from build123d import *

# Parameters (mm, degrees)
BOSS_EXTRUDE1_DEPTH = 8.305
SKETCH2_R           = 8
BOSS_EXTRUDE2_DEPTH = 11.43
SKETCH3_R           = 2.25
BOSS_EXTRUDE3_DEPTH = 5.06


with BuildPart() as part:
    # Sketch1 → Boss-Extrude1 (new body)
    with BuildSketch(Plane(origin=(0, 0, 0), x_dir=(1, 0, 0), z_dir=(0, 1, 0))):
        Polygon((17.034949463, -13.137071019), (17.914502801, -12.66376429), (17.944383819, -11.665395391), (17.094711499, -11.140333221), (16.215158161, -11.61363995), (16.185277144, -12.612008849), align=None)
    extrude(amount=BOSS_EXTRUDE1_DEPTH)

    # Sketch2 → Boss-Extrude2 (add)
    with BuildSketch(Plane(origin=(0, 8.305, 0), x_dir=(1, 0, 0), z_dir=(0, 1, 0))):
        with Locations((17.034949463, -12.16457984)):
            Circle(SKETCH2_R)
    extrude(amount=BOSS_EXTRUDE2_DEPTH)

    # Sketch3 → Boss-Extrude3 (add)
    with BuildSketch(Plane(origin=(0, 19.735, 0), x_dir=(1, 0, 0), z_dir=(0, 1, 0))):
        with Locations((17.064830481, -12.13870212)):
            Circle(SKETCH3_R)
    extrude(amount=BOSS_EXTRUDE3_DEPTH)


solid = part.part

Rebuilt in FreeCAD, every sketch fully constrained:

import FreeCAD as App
import Part
import Sketcher


def add_polygon(sketch, points):
    """Adds a closed chain of lines whose ends are joined by coincident constraints."""
    first, n = sketch.GeometryCount, len(points)
    for a, b in zip(points, points[1:] + points[:1]):
        sketch.addGeometry(Part.LineSegment(App.Vector(*a, 0), App.Vector(*b, 0)), False)
    for i in range(n):
        sketch.addConstraint(Sketcher.Constraint("Coincident", first + i, 2, first + (i + 1) % n, 1))

doc = App.newDocument("Part")
body = doc.addObject("PartDesign::Body", "Body")

# Sketch on XZ plane
sketch1 = doc.addObject("Sketcher::SketchObject", "Sketch")
body.addObject(sketch1)
sketch1.AttachmentSupport = (doc.XZ_Plane, [""])
sketch1.MapMode = "FlatFace"
add_polygon(sketch1, [(17.034949, 13.137071), (17.914503, 12.663764), (17.944384, 11.665395), (17.094711, 11.140333), (16.215158, 11.61364), (16.185277, 12.612009)])  # lines 0-5
sketch1.addConstraint([
    Sketcher.Constraint("Parallel", 0, 3),
    Sketcher.Constraint("Parallel", 1, 4),
    Sketcher.Constraint("Parallel", 2, 5),
    Sketcher.Constraint("Equal", 0, 1),
    Sketcher.Constraint("Equal", 1, 2),
    Sketcher.Constraint("Equal", 2, 3),
    Sketcher.Constraint("DistanceX", -1, 1, 2, 2, 17.094711),
    Sketcher.Constraint("DistanceX", -1, 1, 3, 2, 16.215158),
    Sketcher.Constraint("DistanceY", -1, 1, 3, 2, 11.61364),
    Sketcher.Constraint("DistanceY", -1, 1, 4, 2, 12.612009),
    Sketcher.Constraint("DistanceX", -1, 1, 5, 2, 17.034949),
    Sketcher.Constraint("DistanceY", -1, 1, 5, 2, 13.137071),
])
pad1 = doc.addObject("PartDesign::Pad", "Pad")
body.addObject(pad1)
pad1.Profile = sketch1
pad1.Length = 8.305
pad1.Reversed = True

# Sketch on XZ plane
sketch2 = doc.addObject("Sketcher::SketchObject", "Sketch001")
body.addObject(sketch2)
sketch2.AttachmentSupport = (doc.XZ_Plane, [""])
sketch2.MapMode = "FlatFace"
sketch2.AttachmentOffset = App.Placement(App.Vector(0, 0, -8.305), App.Rotation())
sketch2.addGeometry(Part.Circle(App.Vector(17.034949, 12.16458, 0), App.Vector(0, 0, 1), 8), False)
sketch2.addConstraint([
    Sketcher.Constraint("Diameter", 0, 16.0),
    Sketcher.Constraint("DistanceX", -1, 1, 0, 3, 17.034949),
    Sketcher.Constraint("DistanceY", -1, 1, 0, 3, 12.16458),
])
pad2 = doc.addObject("PartDesign::Pad", "Pad001")
body.addObject(pad2)
pad2.Profile = sketch2
pad2.Length = 11.43
pad2.Reversed = True

# Sketch on XZ plane
sketch3 = doc.addObject("Sketcher::SketchObject", "Sketch002")
body.addObject(sketch3)
sketch3.AttachmentSupport = (doc.XZ_Plane, [""])
sketch3.MapMode = "FlatFace"
sketch3.AttachmentOffset = App.Placement(App.Vector(0, 0, -19.735), App.Rotation())
sketch3.addGeometry(Part.Circle(App.Vector(17.06483, 12.138702, 0), App.Vector(0, 0, 1), 2.25), False)
sketch3.addConstraint([
    Sketcher.Constraint("Diameter", 0, 4.5),
    Sketcher.Constraint("DistanceX", -1, 1, 0, 3, 17.06483),
    Sketcher.Constraint("DistanceY", -1, 1, 0, 3, 12.138702),
])
pad3 = doc.addObject("PartDesign::Pad", "Pad002")
body.addObject(pad3)
pad3.Profile = sketch3
pad3.Length = 5.06
pad3.Reversed = True

doc.recompute()
